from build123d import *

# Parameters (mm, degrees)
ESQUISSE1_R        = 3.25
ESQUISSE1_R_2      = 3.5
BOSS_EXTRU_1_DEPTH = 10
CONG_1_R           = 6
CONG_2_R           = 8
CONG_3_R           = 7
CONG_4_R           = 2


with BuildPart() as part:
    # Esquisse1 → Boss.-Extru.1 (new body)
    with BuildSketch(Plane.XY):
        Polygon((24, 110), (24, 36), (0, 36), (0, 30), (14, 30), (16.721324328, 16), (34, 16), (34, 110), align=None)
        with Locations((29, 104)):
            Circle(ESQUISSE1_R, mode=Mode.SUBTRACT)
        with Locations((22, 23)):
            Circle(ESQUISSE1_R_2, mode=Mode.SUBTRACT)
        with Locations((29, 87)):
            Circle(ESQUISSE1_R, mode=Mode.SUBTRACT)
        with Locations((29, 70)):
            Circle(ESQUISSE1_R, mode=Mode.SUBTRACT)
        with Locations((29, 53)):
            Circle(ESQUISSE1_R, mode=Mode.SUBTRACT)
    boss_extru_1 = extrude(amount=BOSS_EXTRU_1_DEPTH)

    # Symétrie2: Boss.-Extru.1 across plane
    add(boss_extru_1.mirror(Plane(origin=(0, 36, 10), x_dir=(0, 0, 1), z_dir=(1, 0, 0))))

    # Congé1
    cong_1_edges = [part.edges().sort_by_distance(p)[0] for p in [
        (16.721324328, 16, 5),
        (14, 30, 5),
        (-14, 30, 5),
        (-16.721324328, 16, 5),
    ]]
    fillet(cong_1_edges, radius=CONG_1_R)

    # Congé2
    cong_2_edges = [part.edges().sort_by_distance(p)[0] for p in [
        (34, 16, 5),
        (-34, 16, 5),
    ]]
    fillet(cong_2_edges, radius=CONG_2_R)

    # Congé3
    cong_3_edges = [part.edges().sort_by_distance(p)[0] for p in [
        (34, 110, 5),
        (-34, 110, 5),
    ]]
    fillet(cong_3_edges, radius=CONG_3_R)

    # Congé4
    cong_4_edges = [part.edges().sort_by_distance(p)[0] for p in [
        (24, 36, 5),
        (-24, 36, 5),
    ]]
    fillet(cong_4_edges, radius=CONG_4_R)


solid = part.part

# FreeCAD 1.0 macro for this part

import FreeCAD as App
import Part
import Sketcher

V = App.Vector
Q = App.Units.Quantity


def edges_at(feature, points):
    """Names of the edges that pass closest to the given points."""
    edges = feature.Shape.Edges
    near = lambda p: min(range(len(edges)), key=lambda i: edges[i].distToShape(Part.Vertex(*p))[0])
    return sorted({f"Edge{near(p) + 1}" for p in points})

doc = App.newDocument("Part")
params = doc.addObject("Spreadsheet::Sheet", "Params")
for row, (alias, value) in enumerate([
    ("sketch1_diameter", "7 mm"),
    ("sketch1_diameter2", "6.5 mm"),
    ("sketch1_width", "24 mm"),
    ("sketch1_width2", "14 mm"),
    ("sketch1_width3", "10 mm"),
    ("pad1_length", "10 mm"),
    ("fillet_radius", "6 mm"),
    ("fillet2_radius", "8 mm"),
    ("fillet3_radius", "7 mm"),
    ("fillet4_radius", "2 mm"),
], start=1):
    params.set(f"A{row}", alias)
    params.set(f"B{row}", "=" + value)
    params.setAlias(f"B{row}", alias)

body = doc.addObject("PartDesign::Body", "Body")

# Sketch on XY plane
sketch1 = doc.addObject("Sketcher::SketchObject", "Sketch")
body.addObject(sketch1)
sketch1.AttachmentSupport = (doc.XY_Plane, [""])
sketch1.MapMode = "FlatFace"
sketch1.addGeometry(Part.LineSegment(V(24, 110, 0), V(24, 36, 0)), False)
sketch1.addGeometry(Part.LineSegment(V(24, 36, 0), V(0, 36, 0)), False)
sketch1.addGeometry(Part.LineSegment(V(0, 36, 0), V(0, 30, 0)), False)
sketch1.addGeometry(Part.LineSegment(V(0, 30, 0), V(14, 30, 0)), False)
sketch1.addGeometry(Part.LineSegment(V(14, 30, 0), V(16.7, 16, 0)), False)
sketch1.addGeometry(Part.LineSegment(V(16.7, 16, 0), V(34, 16, 0)), False)
sketch1.addGeometry(Part.LineSegment(V(34, 16, 0), V(34, 110, 0)), False)
sketch1.addGeometry(Part.LineSegment(V(34, 110, 0), V(24, 110, 0)), False)
sketch1.addGeometry(Part.Circle(V(22, 23, 0), V(0, 0, 1), 3.5), False)
sketch1.addGeometry(Part.Circle(V(29, 53, 0), V(0, 0, 1), 3.2), False)
sketch1.addGeometry(Part.Circle(V(29, 70, 0), V(0, 0, 1), 3.2), False)
sketch1.addGeometry(Part.Circle(V(29, 87, 0), V(0, 0, 1), 3.2), False)
sketch1.addGeometry(Part.Circle(V(29, 104, 0), V(0, 0, 1), 3.2), False)
sketch1.addConstraint(Sketcher.Constraint("Coincident", 0, 2, 1, 1))
sketch1.addConstraint(Sketcher.Constraint("Coincident", 1, 2, 2, 1))
sketch1.addConstraint(Sketcher.Constraint("Coincident", 2, 2, 3, 1))
sketch1.addConstraint(Sketcher.Constraint("Coincident", 3, 2, 4, 1))
sketch1.addConstraint(Sketcher.Constraint("Coincident", 4, 2, 5, 1))
sketch1.addConstraint(Sketcher.Constraint("Coincident", 5, 2, 6, 1))
sketch1.addConstraint(Sketcher.Constraint("Coincident", 6, 2, 7, 1))
sketch1.addConstraint(Sketcher.Constraint("Coincident", 7, 2, 0, 1))
sketch1.addConstraint(Sketcher.Constraint("Vertical", 0))
sketch1.addConstraint(Sketcher.Constraint("Horizontal", 1))
sketch1.addConstraint(Sketcher.Constraint("Vertical", 2))
sketch1.addConstraint(Sketcher.Constraint("Horizontal", 3))
sketch1.addConstraint(Sketcher.Constraint("Horizontal", 5))
sketch1.addConstraint(Sketcher.Constraint("Vertical", 6))
sketch1.addConstraint(Sketcher.Constraint("Horizontal", 7))
sketch1.addConstraint(Sketcher.Constraint("Equal", 9, 10))
sketch1.addConstraint(Sketcher.Constraint("Equal", 10, 11))
sketch1.addConstraint(Sketcher.Constraint("Equal", 11, 12))
sketch1.addConstraint(Sketcher.Constraint("PointOnObject", 1, 2, -2))
sketch1.addConstraint(Sketcher.Constraint("Vertical", 9, 3, 10, 3))
sketch1.addConstraint(Sketcher.Constraint("Vertical", 10, 3, 11, 3))
sketch1.addConstraint(Sketcher.Constraint("Vertical", 11, 3, 12, 3))
sketch1.addConstraint(Sketcher.Constraint("Diameter", 8, 7.0))
sketch1.addConstraint(Sketcher.Constraint("Diameter", 9, 6.5))
sketch1.addConstraint(Sketcher.Constraint("DistanceX", 1, 2, 1, 1, 24.0))
sketch1.addConstraint(Sketcher.Constraint("DistanceX", 3, 1, 3, 2, 14.0))
sketch1.addConstraint(Sketcher.Constraint("DistanceX", 7, 2, 7, 1, 10.0))
sketch1.addConstraint(Sketcher.Constraint("DistanceY", 0, 2, 0, 1, 74.0))
sketch1.addConstraint(Sketcher.Constraint("DistanceY", 2, 2, 2, 1, 6.0))
sketch1.addConstraint(Sketcher.Constraint("DistanceY", 6, 1, 6, 2, 94.0))
sketch1.addConstraint(Sketcher.Constraint("Angle", 4, Q("-79 deg")))
sketch1.addConstraint(Sketcher.Constraint("DistanceX", -1, 1, 8, 3, 22.0))
sketch1.addConstraint(Sketcher.Constraint("DistanceY", -1, 1, 8, 3, 23.0))
sketch1.addConstraint(Sketcher.Constraint("DistanceX", -1, 1, 9, 3, 29.0))
sketch1.addConstraint(Sketcher.Constraint("DistanceY", -1, 1, 9, 3, 53.0))
sketch1.addConstraint(Sketcher.Constraint("DistanceY", -1, 1, 10, 3, 70.0))
sketch1.addConstraint(Sketcher.Constraint("DistanceY", -1, 1, 11, 3, 87.0))
sketch1.addConstraint(Sketcher.Constraint("DistanceY", -1, 1, 12, 3, 104.0))
sketch1.addConstraint(Sketcher.Constraint("DistanceY", -1, 1, 0, 2, 36.0))
sketch1.setExpression("Constraints[22]", "Params.sketch1_diameter")
sketch1.setExpression("Constraints[23]", "Params.sketch1_diameter2")
sketch1.setExpression("Constraints[24]", "Params.sketch1_width")
sketch1.setExpression("Constraints[25]", "Params.sketch1_width2")
sketch1.setExpression("Constraints[26]", "Params.sketch1_width3")
pad1 = doc.addObject("PartDesign::Pad", "Pad")
body.addObject(pad1)
pad1.Profile = sketch1
pad1.setExpression("Length", "Params.pad1_length")
doc.recompute()

mirrored = doc.addObject("PartDesign::Mirrored", "Mirrored")
body.addObject(mirrored)
mirrored.Originals = [pad1]
mirrored.MirrorPlane = (doc.YZ_Plane, [""])
body.Tip = mirrored
doc.recompute()

fillet = doc.addObject("PartDesign::Fillet", "Fillet")
body.addObject(fillet)
fillet.Base = (mirrored, edges_at(mirrored, [
    (16.721, 16, 5),
    (14, 30, 5),
    (-14, 30, 5),
    (-16.721, 16, 5),
]))
fillet.setExpression("Radius", "Params.fillet_radius")
doc.recompute()

fillet2 = doc.addObject("PartDesign::Fillet", "Fillet001")
body.addObject(fillet2)
fillet2.Base = (fillet, edges_at(fillet, [(34, 16, 5), (-34, 16, 5)]))
fillet2.setExpression("Radius", "Params.fillet2_radius")
doc.recompute()

fillet3 = doc.addObject("PartDesign::Fillet", "Fillet002")
body.addObject(fillet3)
fillet3.Base = (fillet2, edges_at(fillet2, [(34, 110, 5), (-34, 110, 5)]))
fillet3.setExpression("Radius", "Params.fillet3_radius")
doc.recompute()

fillet4 = doc.addObject("PartDesign::Fillet", "Fillet003")
body.addObject(fillet4)
fillet4.Base = (fillet3, edges_at(fillet3, [(24, 36, 5), (-24, 36, 5)]))
fillet4.setExpression("Radius", "Params.fillet4_radius")

doc.recompute()
